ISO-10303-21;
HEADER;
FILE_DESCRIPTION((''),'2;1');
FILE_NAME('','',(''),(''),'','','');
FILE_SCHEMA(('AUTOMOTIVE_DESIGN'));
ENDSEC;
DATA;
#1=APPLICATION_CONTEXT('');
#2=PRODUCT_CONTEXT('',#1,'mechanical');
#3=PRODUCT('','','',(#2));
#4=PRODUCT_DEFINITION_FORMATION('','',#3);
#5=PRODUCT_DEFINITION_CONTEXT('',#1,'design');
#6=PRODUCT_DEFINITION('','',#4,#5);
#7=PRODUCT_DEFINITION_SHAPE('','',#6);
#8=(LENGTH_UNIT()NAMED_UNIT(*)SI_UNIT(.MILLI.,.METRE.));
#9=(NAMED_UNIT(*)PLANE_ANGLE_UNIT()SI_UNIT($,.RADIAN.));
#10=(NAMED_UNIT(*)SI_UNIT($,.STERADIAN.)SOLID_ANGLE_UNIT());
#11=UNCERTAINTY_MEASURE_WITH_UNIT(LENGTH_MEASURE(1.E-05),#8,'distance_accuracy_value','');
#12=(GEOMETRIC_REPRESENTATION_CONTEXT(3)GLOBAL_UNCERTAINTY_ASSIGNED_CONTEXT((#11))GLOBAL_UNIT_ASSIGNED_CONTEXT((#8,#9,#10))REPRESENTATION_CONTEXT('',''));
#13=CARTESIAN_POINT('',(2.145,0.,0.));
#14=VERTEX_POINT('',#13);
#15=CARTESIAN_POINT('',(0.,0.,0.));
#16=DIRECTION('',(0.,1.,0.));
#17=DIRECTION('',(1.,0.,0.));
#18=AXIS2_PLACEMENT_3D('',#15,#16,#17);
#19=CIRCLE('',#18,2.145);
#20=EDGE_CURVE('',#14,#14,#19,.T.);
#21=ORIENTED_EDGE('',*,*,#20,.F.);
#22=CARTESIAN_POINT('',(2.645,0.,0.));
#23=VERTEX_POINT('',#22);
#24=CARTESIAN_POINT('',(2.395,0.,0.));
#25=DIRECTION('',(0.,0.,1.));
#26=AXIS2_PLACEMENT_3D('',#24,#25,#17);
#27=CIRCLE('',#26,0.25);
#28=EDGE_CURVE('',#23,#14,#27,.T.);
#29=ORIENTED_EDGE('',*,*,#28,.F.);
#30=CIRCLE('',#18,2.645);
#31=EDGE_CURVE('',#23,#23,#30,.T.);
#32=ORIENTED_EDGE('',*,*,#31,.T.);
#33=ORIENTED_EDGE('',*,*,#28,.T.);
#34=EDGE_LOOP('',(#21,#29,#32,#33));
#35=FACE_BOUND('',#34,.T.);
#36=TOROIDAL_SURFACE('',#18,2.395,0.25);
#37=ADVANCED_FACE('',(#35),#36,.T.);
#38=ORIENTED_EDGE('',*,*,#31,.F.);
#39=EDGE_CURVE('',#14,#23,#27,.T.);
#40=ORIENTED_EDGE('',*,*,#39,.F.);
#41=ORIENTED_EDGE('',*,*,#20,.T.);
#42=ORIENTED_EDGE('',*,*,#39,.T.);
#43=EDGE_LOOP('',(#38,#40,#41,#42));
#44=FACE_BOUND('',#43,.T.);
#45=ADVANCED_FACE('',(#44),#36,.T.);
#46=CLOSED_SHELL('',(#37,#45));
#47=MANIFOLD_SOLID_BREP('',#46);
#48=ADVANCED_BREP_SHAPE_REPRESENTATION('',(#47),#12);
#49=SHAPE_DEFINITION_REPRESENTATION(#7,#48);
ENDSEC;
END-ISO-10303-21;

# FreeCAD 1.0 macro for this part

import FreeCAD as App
import Part
import Sketcher
Q = App.Units.Quantity

doc = App.newDocument("Part")
body = doc.addObject("PartDesign::Body", "Body")

# Sketch on XY plane
sketch1 = doc.addObject("Sketcher::SketchObject", "Sketch")
body.addObject(sketch1)
sketch1.AttachmentSupport = (doc.XY_Plane, [""])
sketch1.MapMode = "FlatFace"
sketch1.addGeometry(Part.Circle(App.Vector(2.4, 0, 0), App.Vector(0, 0, 1), 0.25), False)
sketch1.addConstraint([
    Sketcher.Constraint("PointOnObject", 0, 3, -1),
    Sketcher.Constraint("Diameter", 0, Q("0.5 mm")),
    Sketcher.Constraint("DistanceX", -1, 1, 0, 3, Q("2.395 mm")),
])
revolution = doc.addObject("PartDesign::Revolution", "Revolution")
body.addObject(revolution)
revolution.Profile = sketch1
revolution.ReferenceAxis = (sketch1, ["V_Axis"])
revolution.Angle = 360

doc.recompute()
